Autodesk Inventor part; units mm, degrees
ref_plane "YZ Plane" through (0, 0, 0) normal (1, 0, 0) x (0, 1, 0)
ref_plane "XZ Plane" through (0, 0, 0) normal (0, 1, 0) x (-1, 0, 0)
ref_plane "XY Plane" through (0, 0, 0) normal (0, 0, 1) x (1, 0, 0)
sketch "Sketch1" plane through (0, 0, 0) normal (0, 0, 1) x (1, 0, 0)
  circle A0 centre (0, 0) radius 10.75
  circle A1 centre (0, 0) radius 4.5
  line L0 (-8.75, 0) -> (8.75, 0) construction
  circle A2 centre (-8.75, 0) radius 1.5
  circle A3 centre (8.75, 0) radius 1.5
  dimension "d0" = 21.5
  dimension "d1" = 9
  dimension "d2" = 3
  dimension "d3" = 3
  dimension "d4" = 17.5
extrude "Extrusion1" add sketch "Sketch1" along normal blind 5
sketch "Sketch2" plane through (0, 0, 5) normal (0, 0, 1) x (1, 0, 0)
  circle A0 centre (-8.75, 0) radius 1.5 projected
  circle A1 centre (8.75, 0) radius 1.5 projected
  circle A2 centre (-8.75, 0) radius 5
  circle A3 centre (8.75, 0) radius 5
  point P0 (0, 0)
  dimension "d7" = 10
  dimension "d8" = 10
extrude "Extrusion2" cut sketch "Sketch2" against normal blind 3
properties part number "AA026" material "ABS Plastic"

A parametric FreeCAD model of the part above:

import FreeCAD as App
import Part
import Sketcher
from FreeCAD import Vector
Q = App.Units.Quantity

doc = App.newDocument("Part")
body = doc.addObject("PartDesign::Body", "Body")

sketch1 = body.newObject("Sketcher::SketchObject", "Sketch")
sketch1.AttachmentSupport = (doc.getObject("XY_Plane"), [""])
sketch1.MapMode = "FlatFace"
sketch1.addGeometry([
    Part.Circle(Vector(0, 0, 0), Vector(0, 0, 1), 10.75),
    Part.Circle(Vector(-8.75, 0, 0), Vector(0, 0, 1), 1.5),
    Part.Circle(Vector(0, 0, 0), Vector(0, 0, 1), 4.5),
    Part.Circle(Vector(8.75, 0, 0), Vector(0, 0, 1), 1.5),
], False)
sketch1.addConstraint([
    Sketcher.Constraint("Coincident", 0, 3, -1, 1),
    Sketcher.Constraint("Coincident", 2, 3, -1, 1),
    Sketcher.Constraint("Equal", 1, 3),
    Sketcher.Constraint("Symmetric", 1, 3, 3, 3, -1, 1),
    Sketcher.Constraint("PointOnObject", 1, 3, -1),
    Sketcher.Constraint("Diameter", 1, Q("3 mm")),
    Sketcher.Constraint("Diameter", 2, Q("9 mm")),
    Sketcher.Constraint("Diameter", 0, Q("21.5 mm")),
    Sketcher.Constraint("DistanceX", 1, 3, 3, 3, Q("17.5 mm")),
])
pad1 = body.newObject("PartDesign::Pad", "Pad")
pad1.Profile = sketch1
pad1.Length = 5

sketch2 = body.newObject("Sketcher::SketchObject", "Sketch001")
sketch2.AttachmentSupport = (doc.getObject("XY_Plane"), [""])
sketch2.MapMode = "FlatFace"
sketch2.AttachmentOffset = App.Placement(Vector(0, 0, 5), App.Rotation())
sketch2.addGeometry([
    Part.Circle(Vector(-8.75, 0, 0), Vector(0, 0, 1), 5),
    Part.Circle(Vector(-8.75, 0, 0), Vector(0, 0, 1), 1.5),
    Part.Circle(Vector(8.75, 0, 0), Vector(0, 0, 1), 5),
    Part.Circle(Vector(8.75, 0, 0), Vector(0, 0, 1), 1.5),
], False)
sketch2.addConstraint([
    Sketcher.Constraint("Coincident", 1, 3, 0, 3),
    Sketcher.Constraint("Coincident", 3, 3, 2, 3),
    Sketcher.Constraint("Equal", 0, 2),
    Sketcher.Constraint("Equal", 1, 3),
    Sketcher.Constraint("Symmetric", 0, 3, 2, 3, -1, 1),
    Sketcher.Constraint("PointOnObject", 0, 3, -1),
    Sketcher.Constraint("Diameter", 0, Q("10 mm")),
    Sketcher.Constraint("Diameter", 1, Q("3 mm")),
    Sketcher.Constraint("DistanceX", 0, 3, 2, 3, Q("17.5 mm")),
])
pocket1 = body.newObject("PartDesign::Pocket", "Pocket")
pocket1.Profile = sketch2
pocket1.Length = 3

doc.recompute()
